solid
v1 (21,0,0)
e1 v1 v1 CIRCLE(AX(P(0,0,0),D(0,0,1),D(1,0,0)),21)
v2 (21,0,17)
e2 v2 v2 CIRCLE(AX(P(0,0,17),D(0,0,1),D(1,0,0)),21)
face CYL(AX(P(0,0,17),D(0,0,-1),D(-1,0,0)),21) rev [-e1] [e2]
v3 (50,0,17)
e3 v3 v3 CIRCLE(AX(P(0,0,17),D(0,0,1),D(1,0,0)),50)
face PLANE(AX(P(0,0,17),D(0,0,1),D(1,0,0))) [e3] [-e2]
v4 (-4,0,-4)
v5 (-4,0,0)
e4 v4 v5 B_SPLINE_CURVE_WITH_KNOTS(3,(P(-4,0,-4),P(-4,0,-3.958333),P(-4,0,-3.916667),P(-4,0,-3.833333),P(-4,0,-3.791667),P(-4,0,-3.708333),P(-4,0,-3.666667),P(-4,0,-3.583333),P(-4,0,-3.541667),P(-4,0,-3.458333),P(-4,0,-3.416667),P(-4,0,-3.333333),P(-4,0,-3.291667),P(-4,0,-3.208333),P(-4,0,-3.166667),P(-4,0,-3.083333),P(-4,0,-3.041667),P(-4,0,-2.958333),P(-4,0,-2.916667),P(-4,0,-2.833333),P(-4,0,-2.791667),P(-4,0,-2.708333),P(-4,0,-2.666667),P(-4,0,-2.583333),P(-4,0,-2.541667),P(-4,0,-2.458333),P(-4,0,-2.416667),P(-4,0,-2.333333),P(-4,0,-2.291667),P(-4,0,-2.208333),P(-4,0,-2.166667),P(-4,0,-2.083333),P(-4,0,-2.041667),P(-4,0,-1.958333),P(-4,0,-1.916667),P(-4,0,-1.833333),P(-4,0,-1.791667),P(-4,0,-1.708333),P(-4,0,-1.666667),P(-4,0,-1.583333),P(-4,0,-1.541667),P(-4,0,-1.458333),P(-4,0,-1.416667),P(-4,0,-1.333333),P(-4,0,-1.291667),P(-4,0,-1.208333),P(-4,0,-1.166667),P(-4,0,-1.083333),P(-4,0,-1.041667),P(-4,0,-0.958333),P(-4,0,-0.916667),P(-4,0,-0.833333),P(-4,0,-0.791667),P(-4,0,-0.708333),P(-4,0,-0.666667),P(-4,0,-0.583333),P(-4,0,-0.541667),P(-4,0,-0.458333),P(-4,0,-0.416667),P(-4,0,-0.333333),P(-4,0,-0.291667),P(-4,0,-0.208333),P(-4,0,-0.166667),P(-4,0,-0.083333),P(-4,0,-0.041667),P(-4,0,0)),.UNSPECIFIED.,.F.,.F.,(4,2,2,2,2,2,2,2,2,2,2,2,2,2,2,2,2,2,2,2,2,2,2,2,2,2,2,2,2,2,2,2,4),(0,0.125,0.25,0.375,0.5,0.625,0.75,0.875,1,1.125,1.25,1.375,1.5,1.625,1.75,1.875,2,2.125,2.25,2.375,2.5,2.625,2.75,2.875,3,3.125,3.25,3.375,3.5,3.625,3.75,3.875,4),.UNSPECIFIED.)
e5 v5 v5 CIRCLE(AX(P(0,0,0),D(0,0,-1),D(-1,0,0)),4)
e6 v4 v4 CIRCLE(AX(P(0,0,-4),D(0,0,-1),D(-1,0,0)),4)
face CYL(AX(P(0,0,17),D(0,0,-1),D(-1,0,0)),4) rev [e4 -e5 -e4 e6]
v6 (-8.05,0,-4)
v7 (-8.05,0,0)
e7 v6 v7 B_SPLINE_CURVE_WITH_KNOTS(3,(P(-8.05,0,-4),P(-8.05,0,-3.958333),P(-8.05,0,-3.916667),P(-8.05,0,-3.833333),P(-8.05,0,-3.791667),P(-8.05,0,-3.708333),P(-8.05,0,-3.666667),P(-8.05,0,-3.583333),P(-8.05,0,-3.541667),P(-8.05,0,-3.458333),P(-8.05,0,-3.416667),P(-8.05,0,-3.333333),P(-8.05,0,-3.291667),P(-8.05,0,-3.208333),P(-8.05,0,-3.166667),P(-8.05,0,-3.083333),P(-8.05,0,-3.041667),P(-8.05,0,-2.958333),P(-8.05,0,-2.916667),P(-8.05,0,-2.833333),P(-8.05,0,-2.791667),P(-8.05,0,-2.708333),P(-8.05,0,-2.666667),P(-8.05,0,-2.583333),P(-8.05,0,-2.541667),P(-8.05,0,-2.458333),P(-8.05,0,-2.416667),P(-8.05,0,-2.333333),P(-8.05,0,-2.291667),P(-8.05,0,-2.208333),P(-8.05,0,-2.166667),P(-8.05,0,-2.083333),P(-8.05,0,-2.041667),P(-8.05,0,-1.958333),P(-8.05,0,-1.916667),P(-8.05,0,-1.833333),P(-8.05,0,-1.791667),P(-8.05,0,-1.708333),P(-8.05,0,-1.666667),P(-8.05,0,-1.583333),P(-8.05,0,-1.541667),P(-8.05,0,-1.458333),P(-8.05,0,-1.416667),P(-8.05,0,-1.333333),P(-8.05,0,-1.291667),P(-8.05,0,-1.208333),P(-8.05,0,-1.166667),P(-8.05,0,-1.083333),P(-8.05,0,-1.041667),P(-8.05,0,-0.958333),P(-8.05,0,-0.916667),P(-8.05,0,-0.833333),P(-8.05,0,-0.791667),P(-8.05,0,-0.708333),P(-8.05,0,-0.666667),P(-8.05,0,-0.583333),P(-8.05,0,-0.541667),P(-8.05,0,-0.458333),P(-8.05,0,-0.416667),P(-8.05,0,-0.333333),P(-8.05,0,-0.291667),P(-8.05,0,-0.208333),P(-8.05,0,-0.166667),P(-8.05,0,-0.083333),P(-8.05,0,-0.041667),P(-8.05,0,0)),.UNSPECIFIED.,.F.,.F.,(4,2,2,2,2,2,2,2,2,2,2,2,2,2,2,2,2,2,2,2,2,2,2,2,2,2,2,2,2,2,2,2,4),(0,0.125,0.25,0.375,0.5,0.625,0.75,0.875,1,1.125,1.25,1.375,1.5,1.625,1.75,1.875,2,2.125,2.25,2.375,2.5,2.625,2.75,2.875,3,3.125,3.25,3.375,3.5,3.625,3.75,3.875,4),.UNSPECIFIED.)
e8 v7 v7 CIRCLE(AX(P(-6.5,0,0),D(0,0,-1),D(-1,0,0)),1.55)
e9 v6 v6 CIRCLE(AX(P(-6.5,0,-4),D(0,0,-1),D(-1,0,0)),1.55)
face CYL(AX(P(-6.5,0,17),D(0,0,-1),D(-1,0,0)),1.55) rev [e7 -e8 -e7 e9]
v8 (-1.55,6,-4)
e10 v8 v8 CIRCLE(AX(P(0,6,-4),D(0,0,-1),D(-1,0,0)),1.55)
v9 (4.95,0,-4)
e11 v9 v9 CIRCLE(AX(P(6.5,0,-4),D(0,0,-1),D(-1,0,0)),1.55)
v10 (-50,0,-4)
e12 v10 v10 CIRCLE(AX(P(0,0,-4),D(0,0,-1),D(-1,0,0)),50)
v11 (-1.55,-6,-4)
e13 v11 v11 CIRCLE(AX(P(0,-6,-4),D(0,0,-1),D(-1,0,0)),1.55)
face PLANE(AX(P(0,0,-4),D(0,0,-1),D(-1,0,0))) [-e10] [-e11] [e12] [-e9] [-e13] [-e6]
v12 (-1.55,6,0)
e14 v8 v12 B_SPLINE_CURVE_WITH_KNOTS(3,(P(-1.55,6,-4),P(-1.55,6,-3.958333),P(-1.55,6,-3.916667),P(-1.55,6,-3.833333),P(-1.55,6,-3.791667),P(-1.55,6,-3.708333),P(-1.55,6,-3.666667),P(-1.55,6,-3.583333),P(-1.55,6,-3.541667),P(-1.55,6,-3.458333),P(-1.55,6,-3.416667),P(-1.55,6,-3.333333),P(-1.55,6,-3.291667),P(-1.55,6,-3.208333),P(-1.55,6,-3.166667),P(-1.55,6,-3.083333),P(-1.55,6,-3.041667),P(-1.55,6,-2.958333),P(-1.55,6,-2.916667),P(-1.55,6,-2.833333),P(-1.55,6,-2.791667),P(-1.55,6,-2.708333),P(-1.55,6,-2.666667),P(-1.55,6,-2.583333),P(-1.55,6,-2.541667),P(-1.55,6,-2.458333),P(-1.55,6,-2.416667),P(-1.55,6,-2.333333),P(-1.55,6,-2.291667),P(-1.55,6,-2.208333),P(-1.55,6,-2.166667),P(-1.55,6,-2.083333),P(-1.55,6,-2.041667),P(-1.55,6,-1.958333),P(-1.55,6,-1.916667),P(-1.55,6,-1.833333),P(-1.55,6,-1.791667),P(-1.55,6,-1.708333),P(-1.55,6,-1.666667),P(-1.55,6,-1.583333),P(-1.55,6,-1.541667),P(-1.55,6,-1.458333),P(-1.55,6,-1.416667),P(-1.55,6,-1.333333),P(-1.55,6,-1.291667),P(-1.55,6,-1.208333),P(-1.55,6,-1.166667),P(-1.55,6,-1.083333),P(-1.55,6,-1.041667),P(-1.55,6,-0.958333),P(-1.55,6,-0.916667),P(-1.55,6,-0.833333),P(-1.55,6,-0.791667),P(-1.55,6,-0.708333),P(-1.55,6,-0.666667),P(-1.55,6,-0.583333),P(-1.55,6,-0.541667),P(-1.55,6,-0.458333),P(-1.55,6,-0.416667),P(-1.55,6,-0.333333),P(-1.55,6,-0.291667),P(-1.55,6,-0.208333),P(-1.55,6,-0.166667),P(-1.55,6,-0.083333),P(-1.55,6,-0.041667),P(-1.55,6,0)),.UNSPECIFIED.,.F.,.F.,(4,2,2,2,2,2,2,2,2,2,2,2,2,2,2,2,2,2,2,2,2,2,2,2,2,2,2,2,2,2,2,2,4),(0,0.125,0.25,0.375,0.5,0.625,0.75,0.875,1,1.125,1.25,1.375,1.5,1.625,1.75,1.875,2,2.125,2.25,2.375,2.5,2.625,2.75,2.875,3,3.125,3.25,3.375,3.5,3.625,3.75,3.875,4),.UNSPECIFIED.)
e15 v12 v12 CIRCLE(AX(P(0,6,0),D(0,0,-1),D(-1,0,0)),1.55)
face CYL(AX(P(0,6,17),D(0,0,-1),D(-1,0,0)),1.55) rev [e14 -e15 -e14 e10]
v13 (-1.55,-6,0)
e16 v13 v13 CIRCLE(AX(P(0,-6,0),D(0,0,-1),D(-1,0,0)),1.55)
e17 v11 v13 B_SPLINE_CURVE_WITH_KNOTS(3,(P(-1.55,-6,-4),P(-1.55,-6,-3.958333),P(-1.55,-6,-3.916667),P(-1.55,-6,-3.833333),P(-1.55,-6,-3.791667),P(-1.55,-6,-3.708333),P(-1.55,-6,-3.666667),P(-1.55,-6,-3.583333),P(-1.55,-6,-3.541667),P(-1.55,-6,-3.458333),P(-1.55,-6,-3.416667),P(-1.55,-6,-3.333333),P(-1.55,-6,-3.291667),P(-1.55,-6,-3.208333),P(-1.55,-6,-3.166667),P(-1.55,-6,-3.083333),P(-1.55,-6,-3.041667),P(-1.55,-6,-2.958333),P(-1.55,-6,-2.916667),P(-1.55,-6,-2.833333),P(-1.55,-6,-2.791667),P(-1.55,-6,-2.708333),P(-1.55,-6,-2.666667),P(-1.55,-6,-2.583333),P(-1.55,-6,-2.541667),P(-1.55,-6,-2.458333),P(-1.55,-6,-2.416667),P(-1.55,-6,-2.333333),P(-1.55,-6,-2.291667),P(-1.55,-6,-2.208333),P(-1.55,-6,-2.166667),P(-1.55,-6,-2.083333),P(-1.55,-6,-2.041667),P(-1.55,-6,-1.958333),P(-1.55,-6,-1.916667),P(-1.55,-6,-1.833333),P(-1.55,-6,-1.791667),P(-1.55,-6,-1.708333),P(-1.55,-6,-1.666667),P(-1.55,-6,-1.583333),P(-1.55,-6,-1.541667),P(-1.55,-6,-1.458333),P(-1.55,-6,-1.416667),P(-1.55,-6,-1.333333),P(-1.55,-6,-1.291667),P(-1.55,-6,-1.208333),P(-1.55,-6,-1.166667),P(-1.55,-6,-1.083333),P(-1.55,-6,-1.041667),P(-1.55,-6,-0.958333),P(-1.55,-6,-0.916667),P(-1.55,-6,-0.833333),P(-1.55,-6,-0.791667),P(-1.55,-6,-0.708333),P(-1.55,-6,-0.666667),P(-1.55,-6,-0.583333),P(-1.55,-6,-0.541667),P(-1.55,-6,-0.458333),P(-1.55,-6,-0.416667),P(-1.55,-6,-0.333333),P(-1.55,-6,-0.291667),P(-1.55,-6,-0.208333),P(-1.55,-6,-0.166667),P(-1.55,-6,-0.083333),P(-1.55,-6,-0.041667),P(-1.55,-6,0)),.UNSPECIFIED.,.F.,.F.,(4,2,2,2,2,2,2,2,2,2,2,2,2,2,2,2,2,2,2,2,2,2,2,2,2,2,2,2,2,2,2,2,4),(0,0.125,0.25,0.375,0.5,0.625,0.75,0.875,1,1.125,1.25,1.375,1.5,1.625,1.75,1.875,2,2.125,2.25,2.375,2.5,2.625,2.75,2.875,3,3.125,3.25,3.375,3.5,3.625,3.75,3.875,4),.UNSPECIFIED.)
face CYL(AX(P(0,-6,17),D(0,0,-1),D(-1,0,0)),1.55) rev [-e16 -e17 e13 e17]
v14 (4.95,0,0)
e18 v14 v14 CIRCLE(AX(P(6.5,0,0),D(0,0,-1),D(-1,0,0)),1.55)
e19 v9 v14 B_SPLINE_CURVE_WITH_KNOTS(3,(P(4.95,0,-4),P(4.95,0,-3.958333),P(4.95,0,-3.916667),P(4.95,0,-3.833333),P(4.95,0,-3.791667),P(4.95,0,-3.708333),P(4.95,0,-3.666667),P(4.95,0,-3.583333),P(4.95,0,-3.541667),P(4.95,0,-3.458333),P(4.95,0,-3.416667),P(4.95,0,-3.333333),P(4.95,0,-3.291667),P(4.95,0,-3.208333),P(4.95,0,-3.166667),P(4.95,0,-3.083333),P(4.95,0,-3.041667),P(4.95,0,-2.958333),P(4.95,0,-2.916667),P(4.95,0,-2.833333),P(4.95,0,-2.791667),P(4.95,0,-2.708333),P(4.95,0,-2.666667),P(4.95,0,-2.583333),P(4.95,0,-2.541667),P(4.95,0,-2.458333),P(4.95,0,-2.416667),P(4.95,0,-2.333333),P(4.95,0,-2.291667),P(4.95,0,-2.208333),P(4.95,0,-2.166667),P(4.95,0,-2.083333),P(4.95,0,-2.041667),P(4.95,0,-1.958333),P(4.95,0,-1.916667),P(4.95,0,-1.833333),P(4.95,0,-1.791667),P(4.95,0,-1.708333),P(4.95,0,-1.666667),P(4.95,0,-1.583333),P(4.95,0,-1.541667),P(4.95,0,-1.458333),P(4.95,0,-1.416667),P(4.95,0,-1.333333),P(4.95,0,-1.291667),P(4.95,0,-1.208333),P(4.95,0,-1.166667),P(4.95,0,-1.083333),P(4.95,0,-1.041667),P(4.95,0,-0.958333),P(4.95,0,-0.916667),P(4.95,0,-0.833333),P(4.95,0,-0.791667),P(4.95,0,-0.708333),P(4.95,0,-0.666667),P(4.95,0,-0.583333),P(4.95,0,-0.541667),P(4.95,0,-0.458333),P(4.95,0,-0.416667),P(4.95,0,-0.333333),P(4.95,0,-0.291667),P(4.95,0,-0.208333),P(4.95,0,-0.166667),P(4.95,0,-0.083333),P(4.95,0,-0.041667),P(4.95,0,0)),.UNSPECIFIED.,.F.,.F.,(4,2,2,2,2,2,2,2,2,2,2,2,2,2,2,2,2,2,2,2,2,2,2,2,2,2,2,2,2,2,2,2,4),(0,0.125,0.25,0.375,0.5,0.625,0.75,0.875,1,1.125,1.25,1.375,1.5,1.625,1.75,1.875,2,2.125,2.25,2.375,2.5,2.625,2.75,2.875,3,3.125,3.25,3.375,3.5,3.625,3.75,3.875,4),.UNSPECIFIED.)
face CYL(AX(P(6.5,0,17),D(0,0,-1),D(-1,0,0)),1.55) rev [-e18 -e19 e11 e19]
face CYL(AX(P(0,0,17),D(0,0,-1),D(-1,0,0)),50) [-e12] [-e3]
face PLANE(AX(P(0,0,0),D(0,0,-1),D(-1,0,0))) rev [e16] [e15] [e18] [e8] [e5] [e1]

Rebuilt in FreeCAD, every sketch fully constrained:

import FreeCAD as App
import Part
import Sketcher
Q = App.Units.Quantity

doc = App.newDocument("Part")
params = doc.addObject("Spreadsheet::Sheet", "Params")
for row, (alias, value) in enumerate([
    ("sketch1_diameter", "100 mm"),
    ("sketch1_diameter2", "42 mm"),
    ("pad1_length", "17 mm"),
    ("sketch2_diameter", "100 mm"),
    ("pad2_length", "4 mm"),
    ("sketch3_diameter", "8 mm"),
    ("sketch3_diameter2", "3.1 mm"),
], start=1):
    params.set(f"A{row}", alias)
    params.set(f"B{row}", "=" + value)
    params.setAlias(f"B{row}", alias)

body = doc.addObject("PartDesign::Body", "Body")

sketch1 = doc.addObject("Sketcher::SketchObject", "Sketch")
body.addObject(sketch1)
sketch1.AttachmentSupport = (doc.XY_Plane, [""])
sketch1.MapMode = "FlatFace"
sketch1.addGeometry([
    Part.Circle(App.Vector(0, 0, 0), App.Vector(0, 0, 1), 50),
    Part.Circle(App.Vector(0, 0, 0), App.Vector(0, 0, 1), 21),
], False)
sketch1.addConstraint([
    Sketcher.Constraint("Coincident", 0, 3, -1, 1),
    Sketcher.Constraint("Coincident", 1, 3, -1, 1),
    Sketcher.Constraint("Diameter", 0, Q("100 mm")),
    Sketcher.Constraint("Diameter", 1, Q("42 mm")),
])
sketch1.setExpression("Constraints[2]", "Params.sketch1_diameter")
sketch1.setExpression("Constraints[3]", "Params.sketch1_diameter2")
pad1 = doc.addObject("PartDesign::Pad", "Pad")
body.addObject(pad1)
pad1.Profile = sketch1
pad1.setExpression("Length", "Params.pad1_length")

sketch2 = doc.addObject("Sketcher::SketchObject", "Sketch001")
body.addObject(sketch2)
sketch2.AttachmentSupport = (doc.XY_Plane, [""])
sketch2.MapMode = "FlatFace"
sketch2.AttachmentOffset = App.Placement(App.Vector(0, 0, -4), App.Rotation())
sketch2.addGeometry(Part.Circle(App.Vector(0, 0, 0), App.Vector(0, 0, 1), 50), False)
sketch2.addConstraint([
    Sketcher.Constraint("Coincident", 0, 3, -1, 1),
    Sketcher.Constraint("Diameter", 0, Q("100 mm")),
])
sketch2.setExpression("Constraints[1]", "Params.sketch2_diameter")
pad2 = doc.addObject("PartDesign::Pad", "Pad001")
body.addObject(pad2)
pad2.Profile = sketch2
pad2.setExpression("Length", "Params.pad2_length")

sketch3 = doc.addObject("Sketcher::SketchObject", "Sketch002")
body.addObject(sketch3)
sketch3.AttachmentSupport = (doc.XY_Plane, [""])
sketch3.MapMode = "FlatFace"
sketch3.AttachmentOffset = App.Placement(App.Vector(0, 0, -4), App.Rotation())
sketch3.addGeometry([
    Part.Circle(App.Vector(0, 0, 0), App.Vector(0, 0, 1), 4),
    Part.Circle(App.Vector(0, 6, 0), App.Vector(0, 0, 1), 1.6),
    Part.Circle(App.Vector(0, -6, 0), App.Vector(0, 0, 1), 1.6),
    Part.Circle(App.Vector(6.5, 0, 0), App.Vector(0, 0, 1), 1.6),
    Part.Circle(App.Vector(-6.5, 0, 0), App.Vector(0, 0, 1), 1.6),
], False)
sketch3.addConstraint([
    Sketcher.Constraint("Coincident", 0, 3, -1, 1),
    Sketcher.Constraint("Equal", 1, 2),
    Sketcher.Constraint("Equal", 2, 3),
    Sketcher.Constraint("Equal", 3, 4),
    Sketcher.Constraint("Symmetric", 1, 3, 2, 3, -1, 1),
    Sketcher.Constraint("Symmetric", 3, 3, 4, 3, -1, 1),
    Sketcher.Constraint("PointOnObject", 1, 3, -2),
    Sketcher.Constraint("PointOnObject", 3, 3, -1),
    Sketcher.Constraint("Diameter", 0, Q("8 mm")),
    Sketcher.Constraint("Diameter", 1, Q("3.1 mm")),
    Sketcher.Constraint("DistanceY", -1, 1, 1, 3, Q("6 mm")),
    Sketcher.Constraint("DistanceX", 4, 3, 3, 3, Q("13 mm")),
])
sketch3.setExpression("Constraints[8]", "Params.sketch3_diameter")
sketch3.setExpression("Constraints[9]", "Params.sketch3_diameter2")
pocket1 = doc.addObject("PartDesign::Pocket", "Pocket")
body.addObject(pocket1)
pocket1.Profile = sketch3
pocket1.Type = "ThroughAll"
pocket1.Midplane = True

doc.recompute()
